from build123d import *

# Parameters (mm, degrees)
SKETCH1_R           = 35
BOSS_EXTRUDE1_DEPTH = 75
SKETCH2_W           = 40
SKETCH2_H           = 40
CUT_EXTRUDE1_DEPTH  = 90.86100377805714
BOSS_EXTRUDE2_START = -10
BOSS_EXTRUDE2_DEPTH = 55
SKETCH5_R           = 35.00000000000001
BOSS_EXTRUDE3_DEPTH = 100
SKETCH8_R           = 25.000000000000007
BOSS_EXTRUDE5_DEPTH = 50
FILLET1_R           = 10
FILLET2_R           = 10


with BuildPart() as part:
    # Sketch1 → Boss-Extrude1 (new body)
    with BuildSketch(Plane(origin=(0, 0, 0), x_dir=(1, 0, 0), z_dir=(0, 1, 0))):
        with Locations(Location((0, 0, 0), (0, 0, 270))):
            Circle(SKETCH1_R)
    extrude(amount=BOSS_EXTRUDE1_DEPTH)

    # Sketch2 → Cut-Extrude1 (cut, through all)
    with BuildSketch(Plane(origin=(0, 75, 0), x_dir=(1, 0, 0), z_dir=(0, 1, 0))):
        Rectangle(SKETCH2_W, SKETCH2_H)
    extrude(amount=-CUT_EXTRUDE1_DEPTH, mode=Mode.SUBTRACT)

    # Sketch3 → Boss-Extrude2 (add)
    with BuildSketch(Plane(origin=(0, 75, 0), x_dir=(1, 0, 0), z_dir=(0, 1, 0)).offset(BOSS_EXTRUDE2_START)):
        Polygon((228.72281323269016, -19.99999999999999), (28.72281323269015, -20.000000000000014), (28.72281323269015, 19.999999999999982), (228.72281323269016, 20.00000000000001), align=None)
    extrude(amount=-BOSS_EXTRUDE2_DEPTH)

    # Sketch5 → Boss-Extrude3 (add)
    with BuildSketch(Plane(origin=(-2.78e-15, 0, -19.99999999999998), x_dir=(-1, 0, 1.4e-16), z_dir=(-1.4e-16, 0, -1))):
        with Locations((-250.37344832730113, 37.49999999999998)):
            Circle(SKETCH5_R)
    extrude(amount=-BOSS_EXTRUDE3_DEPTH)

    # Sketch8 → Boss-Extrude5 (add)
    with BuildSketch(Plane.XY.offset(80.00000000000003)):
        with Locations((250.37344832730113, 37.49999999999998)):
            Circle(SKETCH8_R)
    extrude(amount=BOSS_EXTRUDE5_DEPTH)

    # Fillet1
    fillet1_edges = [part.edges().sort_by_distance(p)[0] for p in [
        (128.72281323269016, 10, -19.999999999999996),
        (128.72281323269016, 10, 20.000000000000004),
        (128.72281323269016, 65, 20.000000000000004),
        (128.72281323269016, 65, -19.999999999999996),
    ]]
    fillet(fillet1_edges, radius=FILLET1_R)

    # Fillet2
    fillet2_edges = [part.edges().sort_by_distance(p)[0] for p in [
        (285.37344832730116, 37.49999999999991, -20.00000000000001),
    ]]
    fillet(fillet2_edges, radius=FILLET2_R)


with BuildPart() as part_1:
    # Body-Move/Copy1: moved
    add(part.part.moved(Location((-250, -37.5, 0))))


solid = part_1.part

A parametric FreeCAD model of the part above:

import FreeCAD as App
import Part
import Sketcher
from FreeCAD import Vector
Q = App.Units.Quantity


def edges_at(feature, points):
    """Names of the edges that pass closest to the given points."""
    edges = feature.Shape.Edges
    near = lambda p: min(range(len(edges)), key=lambda i: edges[i].distToShape(Part.Vertex(*p))[0])
    return sorted({f"Edge{near(p) + 1}" for p in points})

doc = App.newDocument("Part")
body = doc.addObject("PartDesign::Body", "Body")

sketch1 = body.newObject("Sketcher::SketchObject", "Sketch")
sketch1.AttachmentSupport = (doc.getObject("XZ_Plane"), [""])
sketch1.MapMode = "FlatFace"
sketch1.addGeometry(Part.Circle(Vector(0, 0, 0), Vector(0, 0, 1), 35), False)
sketch1.addConstraint(Sketcher.Constraint("Coincident", 0, 3, -1, 1))
sketch1.addConstraint(Sketcher.Constraint("Diameter", 0, Q("70 mm")))
pad1 = body.newObject("PartDesign::Pad", "Pad")
pad1.Profile = sketch1
pad1.Length = 75
pad1.Reversed = True

sketch2 = body.newObject("Sketcher::SketchObject", "Sketch001")
sketch2.AttachmentSupport = (doc.getObject("XZ_Plane"), [""])
sketch2.MapMode = "FlatFace"
sketch2.AttachmentOffset = App.Placement(Vector(0, 0, -75), App.Rotation())
sketch2.addGeometry(Part.LineSegment(Vector(-20, -20, 0), Vector(-20, 20, 0)), False)
sketch2.addGeometry(Part.LineSegment(Vector(-20, 20, 0), Vector(20, 20, 0)), False)
sketch2.addGeometry(Part.LineSegment(Vector(20, 20, 0), Vector(20, -20, 0)), False)
sketch2.addGeometry(Part.LineSegment(Vector(20, -20, 0), Vector(-20, -20, 0)), False)
sketch2.addConstraint(Sketcher.Constraint("Coincident", 0, 2, 1, 1))
sketch2.addConstraint(Sketcher.Constraint("Coincident", 1, 2, 2, 1))
sketch2.addConstraint(Sketcher.Constraint("Coincident", 2, 2, 3, 1))
sketch2.addConstraint(Sketcher.Constraint("Coincident", 3, 2, 0, 1))
sketch2.addConstraint(Sketcher.Constraint("Vertical", 0))
sketch2.addConstraint(Sketcher.Constraint("Horizontal", 1))
sketch2.addConstraint(Sketcher.Constraint("Vertical", 2))
sketch2.addConstraint(Sketcher.Constraint("Horizontal", 3))
sketch2.addConstraint(Sketcher.Constraint("Symmetric", 0, 2, 2, 2, -1, 1))
sketch2.addConstraint(Sketcher.Constraint("Equal", 3, 0))
sketch2.addConstraint(Sketcher.Constraint("DistanceX", 1, 1, 1, 2, Q("40 mm")))
pocket1 = body.newObject("PartDesign::Pocket", "Pocket")
pocket1.Profile = sketch2
pocket1.Type = "ThroughAll"
pocket1.Reversed = True

sketch3 = body.newObject("Sketcher::SketchObject", "Sketch002")
sketch3.AttachmentSupport = (doc.getObject("XZ_Plane"), [""])
sketch3.MapMode = "FlatFace"
sketch3.AttachmentOffset = App.Placement(Vector(0, 0, -65), App.Rotation())
sketch3.addGeometry(Part.LineSegment(Vector(29, 20, 0), Vector(229, 20, 0)), False)
sketch3.addGeometry(Part.LineSegment(Vector(229, 20, 0), Vector(229, -20, 0)), False)
sketch3.addGeometry(Part.LineSegment(Vector(229, -20, 0), Vector(29, -20, 0)), False)
sketch3.addGeometry(Part.LineSegment(Vector(29, -20, 0), Vector(29, 20, 0)), False)
sketch3.addConstraint(Sketcher.Constraint("Coincident", 0, 2, 1, 1))
sketch3.addConstraint(Sketcher.Constraint("Coincident", 1, 2, 2, 1))
sketch3.addConstraint(Sketcher.Constraint("Coincident", 2, 2, 3, 1))
sketch3.addConstraint(Sketcher.Constraint("Coincident", 3, 2, 0, 1))
sketch3.addConstraint(Sketcher.Constraint("Horizontal", 0))
sketch3.addConstraint(Sketcher.Constraint("Vertical", 1))
sketch3.addConstraint(Sketcher.Constraint("Horizontal", 2))
sketch3.addConstraint(Sketcher.Constraint("Vertical", 3))
sketch3.addConstraint(Sketcher.Constraint("DistanceX", 0, 1, 0, 2, Q("200 mm")))
sketch3.addConstraint(Sketcher.Constraint("DistanceY", 1, 2, 1, 1, Q("40 mm")))
sketch3.addConstraint(Sketcher.Constraint("DistanceY", -1, 1, 0, 2, Q("20 mm")))
sketch3.addConstraint(Sketcher.Constraint("DistanceX", -1, 1, 0, 2, Q("228.722813 mm")))
pad2 = body.newObject("PartDesign::Pad", "Pad001")
pad2.Profile = sketch3
pad2.Length = 55

sketch4 = body.newObject("Sketcher::SketchObject", "Sketch003")
sketch4.AttachmentSupport = (doc.getObject("XY_Plane"), [""])
sketch4.MapMode = "FlatFace"
sketch4.AttachmentOffset = App.Placement(Vector(0, 0, -20), App.Rotation())
sketch4.addGeometry(Part.Circle(Vector(250, 38, 0), Vector(0, 0, 1), 35), False)
sketch4.addConstraint(Sketcher.Constraint("Diameter", 0, Q("70 mm")))
sketch4.addConstraint(Sketcher.Constraint("DistanceY", -1, 1, 0, 3, Q("37.5 mm")))
sketch4.addConstraint(Sketcher.Constraint("DistanceX", -1, 1, 0, 3, Q("250.373448 mm")))
pad3 = body.newObject("PartDesign::Pad", "Pad002")
pad3.Profile = sketch4
pad3.Length = 100

sketch5 = body.newObject("Sketcher::SketchObject", "Sketch004")
sketch5.AttachmentSupport = (doc.getObject("XY_Plane"), [""])
sketch5.MapMode = "FlatFace"
sketch5.AttachmentOffset = App.Placement(Vector(0, 0, 80), App.Rotation())
sketch5.addGeometry(Part.Circle(Vector(250, 38, 0), Vector(0, 0, 1), 25), False)
sketch5.addConstraint(Sketcher.Constraint("Diameter", 0, Q("50 mm")))
sketch5.addConstraint(Sketcher.Constraint("DistanceY", -1, 1, 0, 3, Q("37.5 mm")))
sketch5.addConstraint(Sketcher.Constraint("DistanceX", -1, 1, 0, 3, Q("250.373448 mm")))
pad4 = body.newObject("PartDesign::Pad", "Pad003")
pad4.Profile = sketch5
pad4.Length = 50
doc.recompute()

fillet = body.newObject("PartDesign::Fillet", "Fillet")
fillet.Base = (pad4, edges_at(pad4, [
    (128.723, 10, -20),
    (128.723, 10, 20),
    (128.723, 65, 20),
    (128.723, 65, -20),
]))
fillet.Radius = 10
doc.recompute()

fillet2 = body.newObject("PartDesign::Fillet", "Fillet001")
fillet2.Base = (fillet, edges_at(fillet, [(285.373, 37.5, -20)]))
fillet2.Radius = 10
body2 = doc.addObject("PartDesign::Body", "Body001")
doc.recompute()

body.Placement = App.Placement(Vector(-250, -37.5, 0), App.Rotation(Vector(0, 0, 1), 0))
boolean = body2.newObject("PartDesign::Boolean", "Boolean")
boolean.Type = "Fuse"
boolean.addObjects([body])

doc.recompute()
